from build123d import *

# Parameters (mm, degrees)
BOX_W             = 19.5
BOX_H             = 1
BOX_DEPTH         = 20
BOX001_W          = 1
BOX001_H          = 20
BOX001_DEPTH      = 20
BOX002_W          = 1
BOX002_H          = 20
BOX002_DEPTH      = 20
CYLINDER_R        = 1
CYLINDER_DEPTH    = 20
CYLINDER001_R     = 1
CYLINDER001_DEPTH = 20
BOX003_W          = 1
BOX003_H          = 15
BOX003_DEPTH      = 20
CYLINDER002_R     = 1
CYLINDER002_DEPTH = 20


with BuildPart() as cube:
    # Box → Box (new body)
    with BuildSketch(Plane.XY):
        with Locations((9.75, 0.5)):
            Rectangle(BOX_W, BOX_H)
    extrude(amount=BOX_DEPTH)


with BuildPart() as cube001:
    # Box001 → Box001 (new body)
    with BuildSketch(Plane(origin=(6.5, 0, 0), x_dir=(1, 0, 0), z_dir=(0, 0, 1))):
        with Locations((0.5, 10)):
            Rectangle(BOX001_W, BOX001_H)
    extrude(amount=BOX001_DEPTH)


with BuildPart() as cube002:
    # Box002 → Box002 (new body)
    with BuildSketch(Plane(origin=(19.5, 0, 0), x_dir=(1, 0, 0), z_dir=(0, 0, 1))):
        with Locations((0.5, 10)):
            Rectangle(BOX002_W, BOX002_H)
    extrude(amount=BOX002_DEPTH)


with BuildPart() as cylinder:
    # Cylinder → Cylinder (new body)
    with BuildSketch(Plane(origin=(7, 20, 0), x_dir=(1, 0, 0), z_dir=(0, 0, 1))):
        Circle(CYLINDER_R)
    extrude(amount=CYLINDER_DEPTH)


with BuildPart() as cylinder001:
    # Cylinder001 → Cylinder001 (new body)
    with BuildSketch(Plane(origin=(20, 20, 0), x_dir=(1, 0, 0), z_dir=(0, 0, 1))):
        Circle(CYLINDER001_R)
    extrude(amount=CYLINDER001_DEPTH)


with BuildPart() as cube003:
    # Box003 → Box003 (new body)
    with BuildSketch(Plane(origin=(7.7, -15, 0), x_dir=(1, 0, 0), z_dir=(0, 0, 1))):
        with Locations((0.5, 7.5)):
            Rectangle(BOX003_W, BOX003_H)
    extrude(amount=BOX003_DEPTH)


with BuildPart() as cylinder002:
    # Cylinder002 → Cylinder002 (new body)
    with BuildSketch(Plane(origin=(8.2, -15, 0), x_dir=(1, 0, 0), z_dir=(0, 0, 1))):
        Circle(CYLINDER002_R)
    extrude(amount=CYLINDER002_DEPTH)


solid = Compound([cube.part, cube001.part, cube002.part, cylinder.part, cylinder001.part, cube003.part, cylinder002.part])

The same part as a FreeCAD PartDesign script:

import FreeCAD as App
import Part
import Sketcher

V = App.Vector
Q = App.Units.Quantity

doc = App.newDocument("Part")
body = doc.addObject("PartDesign::Body", "Body")

sketch1 = body.newObject("Sketcher::SketchObject", "Sketch")
sketch1.AttachmentSupport = (doc.getObject("XY_Plane"), [""])
sketch1.MapMode = "FlatFace"
sketch1.addGeometry(Part.LineSegment(V(0, 1, 0), V(0, 0, 0)), False)
sketch1.addGeometry(Part.LineSegment(V(0, 0, 0), V(19.5, 0, 0)), False)
sketch1.addGeometry(Part.LineSegment(V(19.5, 0, 0), V(19.5, 1, 0)), False)
sketch1.addGeometry(Part.LineSegment(V(19.5, 1, 0), V(0, 1, 0)), False)
sketch1.addConstraint(Sketcher.Constraint("Coincident", 0, 2, 1, 1))
sketch1.addConstraint(Sketcher.Constraint("Coincident", 1, 2, 2, 1))
sketch1.addConstraint(Sketcher.Constraint("Coincident", 2, 2, 3, 1))
sketch1.addConstraint(Sketcher.Constraint("Coincident", 3, 2, 0, 1))
sketch1.addConstraint(Sketcher.Constraint("Vertical", 0))
sketch1.addConstraint(Sketcher.Constraint("Horizontal", 1))
sketch1.addConstraint(Sketcher.Constraint("Vertical", 2))
sketch1.addConstraint(Sketcher.Constraint("Horizontal", 3))
sketch1.addConstraint(Sketcher.Constraint("Coincident", 0, 2, -1, 1))
sketch1.addConstraint(Sketcher.Constraint("DistanceY", 0, 2, 0, 1, Q("1 mm")))
sketch1.addConstraint(Sketcher.Constraint("DistanceX", 1, 1, 1, 2, Q("19.5 mm")))
pad1 = body.newObject("PartDesign::Pad", "Pad")
pad1.Profile = sketch1
pad1.Length = 20
body2 = doc.addObject("PartDesign::Body", "Body001")

sketch2 = body2.newObject("Sketcher::SketchObject", "Sketch001")
sketch2.AttachmentSupport = (doc.getObject("XY_Plane001"), [""])
sketch2.MapMode = "FlatFace"
sketch2.addGeometry(Part.LineSegment(V(6.5, 20, 0), V(6.5, 0, 0)), False)
sketch2.addGeometry(Part.LineSegment(V(6.5, 0, 0), V(7.5, 0, 0)), False)
sketch2.addGeometry(Part.LineSegment(V(7.5, 0, 0), V(7.5, 20, 0)), False)
sketch2.addGeometry(Part.LineSegment(V(7.5, 20, 0), V(6.5, 20, 0)), False)
sketch2.addConstraint(Sketcher.Constraint("Coincident", 0, 2, 1, 1))
sketch2.addConstraint(Sketcher.Constraint("Coincident", 1, 2, 2, 1))
sketch2.addConstraint(Sketcher.Constraint("Coincident", 2, 2, 3, 1))
sketch2.addConstraint(Sketcher.Constraint("Coincident", 3, 2, 0, 1))
sketch2.addConstraint(Sketcher.Constraint("Vertical", 0))
sketch2.addConstraint(Sketcher.Constraint("Horizontal", 1))
sketch2.addConstraint(Sketcher.Constraint("Vertical", 2))
sketch2.addConstraint(Sketcher.Constraint("Horizontal", 3))
sketch2.addConstraint(Sketcher.Constraint("PointOnObject", 0, 2, -1))
sketch2.addConstraint(Sketcher.Constraint("DistanceX", 1, 1, 1, 2, Q("1 mm")))
sketch2.addConstraint(Sketcher.Constraint("DistanceY", 0, 2, 0, 1, Q("20 mm")))
sketch2.addConstraint(Sketcher.Constraint("DistanceX", -1, 1, 0, 2, Q("6.5 mm")))
pad2 = body2.newObject("PartDesign::Pad", "Pad001")
pad2.Profile = sketch2
pad2.Length = 20
body3 = doc.addObject("PartDesign::Body", "Body002")

sketch3 = body3.newObject("Sketcher::SketchObject", "Sketch002")
sketch3.AttachmentSupport = (doc.getObject("XY_Plane002"), [""])
sketch3.MapMode = "FlatFace"
sketch3.addGeometry(Part.LineSegment(V(19.5, 20, 0), V(19.5, 0, 0)), False)
sketch3.addGeometry(Part.LineSegment(V(19.5, 0, 0), V(20.5, 0, 0)), False)
sketch3.addGeometry(Part.LineSegment(V(20.5, 0, 0), V(20.5, 20, 0)), False)
sketch3.addGeometry(Part.LineSegment(V(20.5, 20, 0), V(19.5, 20, 0)), False)
sketch3.addConstraint(Sketcher.Constraint("Coincident", 0, 2, 1, 1))
sketch3.addConstraint(Sketcher.Constraint("Coincident", 1, 2, 2, 1))
sketch3.addConstraint(Sketcher.Constraint("Coincident", 2, 2, 3, 1))
sketch3.addConstraint(Sketcher.Constraint("Coincident", 3, 2, 0, 1))
sketch3.addConstraint(Sketcher.Constraint("Vertical", 0))
sketch3.addConstraint(Sketcher.Constraint("Horizontal", 1))
sketch3.addConstraint(Sketcher.Constraint("Vertical", 2))
sketch3.addConstraint(Sketcher.Constraint("Horizontal", 3))
sketch3.addConstraint(Sketcher.Constraint("PointOnObject", 0, 2, -1))
sketch3.addConstraint(Sketcher.Constraint("DistanceX", 1, 1, 1, 2, Q("1 mm")))
sketch3.addConstraint(Sketcher.Constraint("DistanceY", 0, 2, 0, 1, Q("20 mm")))
sketch3.addConstraint(Sketcher.Constraint("DistanceX", -1, 1, 0, 2, Q("19.5 mm")))
pad3 = body3.newObject("PartDesign::Pad", "Pad002")
pad3.Profile = sketch3
pad3.Length = 20
body4 = doc.addObject("PartDesign::Body", "Body003")

sketch4 = body4.newObject("Sketcher::SketchObject", "Sketch003")
sketch4.AttachmentSupport = (doc.getObject("XY_Plane003"), [""])
sketch4.MapMode = "FlatFace"
sketch4.addGeometry(Part.Circle(V(7, 20, 0), V(0, 0, 1), 1), False)
sketch4.addConstraint(Sketcher.Constraint("Diameter", 0, Q("2 mm")))
sketch4.addConstraint(Sketcher.Constraint("DistanceX", -1, 1, 0, 3, Q("7 mm")))
sketch4.addConstraint(Sketcher.Constraint("DistanceY", -1, 1, 0, 3, Q("20 mm")))
pad4 = body4.newObject("PartDesign::Pad", "Pad003")
pad4.Profile = sketch4
pad4.Length = 20
body5 = doc.addObject("PartDesign::Body", "Body004")

sketch5 = body5.newObject("Sketcher::SketchObject", "Sketch004")
sketch5.AttachmentSupport = (doc.getObject("XY_Plane004"), [""])
sketch5.MapMode = "FlatFace"
sketch5.addGeometry(Part.Circle(V(20, 20, 0), V(0, 0, 1), 1), False)
sketch5.addConstraint(Sketcher.Constraint("Diameter", 0, Q("2 mm")))
sketch5.addConstraint(Sketcher.Constraint("DistanceX", -1, 1, 0, 3, Q("20 mm")))
sketch5.addConstraint(Sketcher.Constraint("DistanceY", -1, 1, 0, 3, Q("20 mm")))
pad5 = body5.newObject("PartDesign::Pad", "Pad004")
pad5.Profile = sketch5
pad5.Length = 20
body6 = doc.addObject("PartDesign::Body", "Body005")

sketch6 = body6.newObject("Sketcher::SketchObject", "Sketch005")
sketch6.AttachmentSupport = (doc.getObject("XY_Plane005"), [""])
sketch6.MapMode = "FlatFace"
sketch6.addGeometry(Part.LineSegment(V(7.7, 0, 0), V(7.7, -15, 0)), False)
sketch6.addGeometry(Part.LineSegment(V(7.7, -15, 0), V(8.7, -15, 0)), False)
sketch6.addGeometry(Part.LineSegment(V(8.7, -15, 0), V(8.7, 0, 0)), False)
sketch6.addGeometry(Part.LineSegment(V(8.7, 0, 0), V(7.7, 0, 0)), False)
sketch6.addConstraint(Sketcher.Constraint("Coincident", 0, 2, 1, 1))
sketch6.addConstraint(Sketcher.Constraint("Coincident", 1, 2, 2, 1))
sketch6.addConstraint(Sketcher.Constraint("Coincident", 2, 2, 3, 1))
sketch6.addConstraint(Sketcher.Constraint("Coincident", 3, 2, 0, 1))
sketch6.addConstraint(Sketcher.Constraint("Vertical", 0))
sketch6.addConstraint(Sketcher.Constraint("Horizontal", 1))
sketch6.addConstraint(Sketcher.Constraint("Vertical", 2))
sketch6.addConstraint(Sketcher.Constraint("Horizontal", 3))
sketch6.addConstraint(Sketcher.Constraint("PointOnObject", 2, 2, -1))
sketch6.addConstraint(Sketcher.Constraint("DistanceX", 1, 1, 1, 2, Q("1 mm")))
sketch6.addConstraint(Sketcher.Constraint("DistanceY", 0, 2, 0, 1, Q("15 mm")))
sketch6.addConstraint(Sketcher.Constraint("DistanceX", -1, 1, 0, 2, Q("7.7 mm")))
pad6 = body6.newObject("PartDesign::Pad", "Pad005")
pad6.Profile = sketch6
pad6.Length = 20
body7 = doc.addObject("PartDesign::Body", "Body006")

sketch7 = body7.newObject("Sketcher::SketchObject", "Sketch006")
sketch7.AttachmentSupport = (doc.getObject("XY_Plane006"), [""])
sketch7.MapMode = "FlatFace"
sketch7.addGeometry(Part.Circle(V(8.2, -15, 0), V(0, 0, 1), 1), False)
sketch7.addConstraint(Sketcher.Constraint("Diameter", 0, Q("2 mm")))
sketch7.addConstraint(Sketcher.Constraint("DistanceY", 0, 3, -1, 1, Q("15 mm")))
sketch7.addConstraint(Sketcher.Constraint("DistanceX", -1, 1, 0, 3, Q("8.2 mm")))
pad7 = body7.newObject("PartDesign::Pad", "Pad006")
pad7.Profile = sketch7
pad7.Length = 20

doc.recompute()
